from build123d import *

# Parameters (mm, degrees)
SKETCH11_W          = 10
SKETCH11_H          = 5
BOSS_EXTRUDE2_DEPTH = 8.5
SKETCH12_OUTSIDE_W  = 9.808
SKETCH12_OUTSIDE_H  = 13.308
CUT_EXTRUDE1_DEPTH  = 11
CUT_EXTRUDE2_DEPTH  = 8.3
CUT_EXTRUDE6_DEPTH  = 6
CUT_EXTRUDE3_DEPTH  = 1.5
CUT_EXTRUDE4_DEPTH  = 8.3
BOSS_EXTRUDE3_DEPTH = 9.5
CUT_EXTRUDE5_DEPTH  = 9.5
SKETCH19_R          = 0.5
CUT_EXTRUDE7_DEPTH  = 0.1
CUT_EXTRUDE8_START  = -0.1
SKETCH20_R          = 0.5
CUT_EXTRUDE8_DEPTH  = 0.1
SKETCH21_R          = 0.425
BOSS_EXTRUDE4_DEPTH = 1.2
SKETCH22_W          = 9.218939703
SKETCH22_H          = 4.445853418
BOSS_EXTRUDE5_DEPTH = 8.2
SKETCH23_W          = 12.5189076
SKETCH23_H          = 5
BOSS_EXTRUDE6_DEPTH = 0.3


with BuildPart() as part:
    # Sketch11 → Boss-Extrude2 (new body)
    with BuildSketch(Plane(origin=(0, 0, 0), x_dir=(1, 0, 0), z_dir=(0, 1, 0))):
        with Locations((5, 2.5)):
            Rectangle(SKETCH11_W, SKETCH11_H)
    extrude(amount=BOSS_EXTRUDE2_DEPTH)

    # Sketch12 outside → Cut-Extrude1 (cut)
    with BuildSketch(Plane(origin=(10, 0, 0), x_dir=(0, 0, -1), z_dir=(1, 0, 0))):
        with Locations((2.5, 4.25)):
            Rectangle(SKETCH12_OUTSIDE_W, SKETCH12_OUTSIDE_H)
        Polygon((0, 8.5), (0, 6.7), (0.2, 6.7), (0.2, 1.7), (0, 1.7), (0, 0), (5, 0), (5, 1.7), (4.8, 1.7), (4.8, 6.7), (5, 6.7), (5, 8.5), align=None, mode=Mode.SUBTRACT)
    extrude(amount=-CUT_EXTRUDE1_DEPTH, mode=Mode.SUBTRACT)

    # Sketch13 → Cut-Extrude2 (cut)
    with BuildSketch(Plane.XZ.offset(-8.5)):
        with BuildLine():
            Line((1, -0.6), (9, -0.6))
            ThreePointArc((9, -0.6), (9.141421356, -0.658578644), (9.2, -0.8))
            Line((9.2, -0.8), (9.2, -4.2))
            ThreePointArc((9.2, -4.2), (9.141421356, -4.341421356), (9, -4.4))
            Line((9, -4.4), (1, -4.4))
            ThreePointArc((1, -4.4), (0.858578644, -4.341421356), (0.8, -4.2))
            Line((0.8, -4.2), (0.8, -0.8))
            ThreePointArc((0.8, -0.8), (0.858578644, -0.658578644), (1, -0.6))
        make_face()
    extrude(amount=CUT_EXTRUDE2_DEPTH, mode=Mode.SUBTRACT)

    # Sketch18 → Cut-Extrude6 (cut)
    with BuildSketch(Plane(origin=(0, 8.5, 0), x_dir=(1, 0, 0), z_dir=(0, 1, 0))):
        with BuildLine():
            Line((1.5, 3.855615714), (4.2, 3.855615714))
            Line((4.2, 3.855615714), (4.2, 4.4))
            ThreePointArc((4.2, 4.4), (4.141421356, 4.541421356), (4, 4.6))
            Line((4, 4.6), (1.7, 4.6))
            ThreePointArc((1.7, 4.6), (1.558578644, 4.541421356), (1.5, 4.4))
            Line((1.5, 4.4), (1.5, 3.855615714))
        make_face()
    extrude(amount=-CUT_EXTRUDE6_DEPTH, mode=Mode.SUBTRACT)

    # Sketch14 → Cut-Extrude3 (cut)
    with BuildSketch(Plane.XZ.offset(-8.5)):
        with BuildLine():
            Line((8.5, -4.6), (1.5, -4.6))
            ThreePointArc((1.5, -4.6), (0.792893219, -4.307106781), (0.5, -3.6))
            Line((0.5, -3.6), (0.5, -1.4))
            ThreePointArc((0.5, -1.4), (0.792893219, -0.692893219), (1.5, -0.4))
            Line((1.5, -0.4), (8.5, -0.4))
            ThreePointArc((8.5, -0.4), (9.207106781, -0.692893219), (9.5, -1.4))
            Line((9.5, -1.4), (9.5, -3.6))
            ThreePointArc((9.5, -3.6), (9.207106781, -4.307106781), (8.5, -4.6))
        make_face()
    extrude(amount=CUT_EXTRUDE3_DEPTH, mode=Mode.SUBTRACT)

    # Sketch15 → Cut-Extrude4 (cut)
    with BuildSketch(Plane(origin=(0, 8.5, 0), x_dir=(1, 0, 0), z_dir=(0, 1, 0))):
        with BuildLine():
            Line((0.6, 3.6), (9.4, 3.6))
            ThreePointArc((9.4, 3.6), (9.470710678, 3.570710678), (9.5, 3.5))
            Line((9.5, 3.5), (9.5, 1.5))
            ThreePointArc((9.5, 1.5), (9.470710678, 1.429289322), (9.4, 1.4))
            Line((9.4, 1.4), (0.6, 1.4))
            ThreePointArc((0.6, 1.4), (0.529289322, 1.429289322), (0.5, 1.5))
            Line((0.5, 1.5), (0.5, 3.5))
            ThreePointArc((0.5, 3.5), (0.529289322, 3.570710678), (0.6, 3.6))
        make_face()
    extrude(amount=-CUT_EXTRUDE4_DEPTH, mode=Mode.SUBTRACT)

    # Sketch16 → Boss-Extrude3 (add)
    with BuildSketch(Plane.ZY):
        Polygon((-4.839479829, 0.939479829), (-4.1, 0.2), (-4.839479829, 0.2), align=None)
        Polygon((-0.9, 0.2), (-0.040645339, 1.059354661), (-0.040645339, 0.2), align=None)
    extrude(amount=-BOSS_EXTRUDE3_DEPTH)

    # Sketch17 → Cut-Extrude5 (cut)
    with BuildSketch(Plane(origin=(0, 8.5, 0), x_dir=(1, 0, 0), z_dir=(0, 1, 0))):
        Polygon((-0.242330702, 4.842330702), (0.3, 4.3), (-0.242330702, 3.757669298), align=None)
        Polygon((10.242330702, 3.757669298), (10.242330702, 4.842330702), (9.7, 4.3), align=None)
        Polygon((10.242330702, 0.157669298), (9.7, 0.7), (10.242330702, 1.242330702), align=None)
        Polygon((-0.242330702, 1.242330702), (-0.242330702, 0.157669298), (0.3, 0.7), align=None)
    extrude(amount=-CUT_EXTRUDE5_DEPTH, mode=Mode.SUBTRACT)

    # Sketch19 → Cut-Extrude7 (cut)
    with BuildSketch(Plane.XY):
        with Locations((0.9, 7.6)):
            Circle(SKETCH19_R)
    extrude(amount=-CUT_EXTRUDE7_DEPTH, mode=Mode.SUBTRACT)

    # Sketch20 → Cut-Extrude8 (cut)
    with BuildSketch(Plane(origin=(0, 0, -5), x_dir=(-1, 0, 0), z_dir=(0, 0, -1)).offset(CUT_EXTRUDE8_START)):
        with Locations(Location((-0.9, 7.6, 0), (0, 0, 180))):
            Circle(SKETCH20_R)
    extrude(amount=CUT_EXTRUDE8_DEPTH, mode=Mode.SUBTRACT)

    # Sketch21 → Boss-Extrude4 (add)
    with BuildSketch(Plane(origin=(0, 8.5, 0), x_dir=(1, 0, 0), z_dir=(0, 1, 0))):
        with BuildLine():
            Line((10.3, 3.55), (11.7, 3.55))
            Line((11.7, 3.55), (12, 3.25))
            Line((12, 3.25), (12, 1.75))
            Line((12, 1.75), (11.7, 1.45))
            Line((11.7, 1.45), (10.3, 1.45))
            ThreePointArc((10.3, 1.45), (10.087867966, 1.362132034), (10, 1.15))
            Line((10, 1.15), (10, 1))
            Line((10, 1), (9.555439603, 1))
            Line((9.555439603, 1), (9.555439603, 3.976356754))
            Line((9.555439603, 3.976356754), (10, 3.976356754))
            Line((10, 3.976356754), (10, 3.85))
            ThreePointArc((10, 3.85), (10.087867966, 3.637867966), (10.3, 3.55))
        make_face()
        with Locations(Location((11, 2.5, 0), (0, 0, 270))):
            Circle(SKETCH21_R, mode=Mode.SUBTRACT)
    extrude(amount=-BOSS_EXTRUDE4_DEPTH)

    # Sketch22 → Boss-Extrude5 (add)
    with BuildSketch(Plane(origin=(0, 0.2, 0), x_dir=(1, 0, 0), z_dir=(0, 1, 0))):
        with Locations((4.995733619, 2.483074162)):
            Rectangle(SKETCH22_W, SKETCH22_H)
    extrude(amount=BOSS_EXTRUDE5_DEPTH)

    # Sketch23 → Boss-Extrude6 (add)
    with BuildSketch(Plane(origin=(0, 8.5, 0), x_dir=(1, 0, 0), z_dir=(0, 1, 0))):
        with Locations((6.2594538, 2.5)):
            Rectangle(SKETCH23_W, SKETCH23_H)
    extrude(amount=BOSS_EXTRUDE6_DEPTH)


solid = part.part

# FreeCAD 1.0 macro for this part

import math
import FreeCAD as App
import Part
import Sketcher

V = App.Vector

doc = App.newDocument("Part")
params = doc.addObject("Spreadsheet::Sheet", "Params")
for row, (alias, value) in enumerate([
    ("sketch1_width", "10 mm"),
    ("sketch1_height", "5 mm"),
    ("pad1_length", "8.5 mm"),
    ("sketch2_width", "5 mm"),
    ("sketch2_width2", "1.8 mm"),
    ("sketch2_width3", "1.7 mm"),
    ("sketch2_height", "0.2 mm"),
    ("pocket1_length", "11 mm"),
    ("sketch3_radius", "0.2 mm"),
    ("sketch3_width", "8 mm"),
    ("sketch3_height", "3.4 mm"),
    ("pocket2_length", "8.3 mm"),
    ("sketch4_radius", "0.2 mm"),
    ("sketch4_width", "2.7 mm"),
    ("pocket3_length", "6 mm"),
    ("sketch5_radius", "1 mm"),
    ("sketch5_width", "7 mm"),
    ("sketch5_height", "2.2 mm"),
    ("pocket4_length", "1.5 mm"),
    ("sketch6_radius", "0.1 mm"),
    ("sketch6_height", "2 mm"),
    ("sketch6_width", "8.8 mm"),
    ("pocket5_length", "8.3 mm"),
    ("pad2_length", "9.5 mm"),
    ("pocket6_length", "9.5 mm"),
    ("sketch9_diameter", "1 mm"),
    ("pocket7_length", "0.1 mm"),
    ("sketch10_diameter", "1 mm"),
    ("pocket8_length", "0.1 mm"),
    ("sketch11_radius", "0.3 mm"),
    ("sketch11_diameter", "0.85 mm"),
    ("sketch11_width", "1.4 mm"),
    ("sketch11_height", "1.5 mm"),
    ("sketch11_height2", "0.15 mm"),
    ("pad3_length", "1.2 mm"),
    ("pad4_length", "8.2 mm"),
    ("sketch13_height", "5 mm"),
    ("pad5_length", "0.3 mm"),
], start=1):
    params.set(f"A{row}", alias)
    params.set(f"B{row}", "=" + value)
    params.setAlias(f"B{row}", alias)

body = doc.addObject("PartDesign::Body", "Body")

sketch1 = body.newObject("Sketcher::SketchObject", "Sketch")
sketch1.AttachmentSupport = (doc.getObject("XZ_Plane"), [""])
sketch1.MapMode = "FlatFace"
sketch1.addGeometry([
    Part.LineSegment(V(0, -5, 0), V(0, 0, 0)),
    Part.LineSegment(V(0, 0, 0), V(10, 0, 0)),
    Part.LineSegment(V(10, 0, 0), V(10, -5, 0)),
    Part.LineSegment(V(10, -5, 0), V(0, -5, 0)),
], False)
sketch1.addConstraint([
    Sketcher.Constraint("Coincident", 0, 2, 1, 1),
    Sketcher.Constraint("Coincident", 1, 2, 2, 1),
    Sketcher.Constraint("Coincident", 2, 2, 3, 1),
    Sketcher.Constraint("Coincident", 3, 2, 0, 1),
    Sketcher.Constraint("Vertical", 0),
    Sketcher.Constraint("Horizontal", 1),
    Sketcher.Constraint("Vertical", 2),
    Sketcher.Constraint("Horizontal", 3),
    Sketcher.Constraint("Coincident", 0, 2, -1, 1),
    Sketcher.Constraint("DistanceX", 1, 1, 1, 2, 10.0),
    Sketcher.Constraint("DistanceY", 0, 1, 0, 2, 5.0),
])
sketch1.setExpression("Constraints[9]", "Params.sketch1_width")
sketch1.setExpression("Constraints[10]", "Params.sketch1_height")
pad1 = body.newObject("PartDesign::Pad", "Pad")
pad1.Profile = sketch1
pad1.setExpression("Length", "Params.pad1_length")
pad1.Reversed = True

sketch2 = body.newObject("Sketcher::SketchObject", "Sketch001")
sketch2.AttachmentSupport = (doc.getObject("YZ_Plane"), [""])
sketch2.MapMode = "FlatFace"
sketch2.AttachmentOffset = App.Placement(V(0, 0, 10), App.Rotation())
sketch2.addGeometry([
    Part.LineSegment(V(10.9, 2.4, 0), V(-2.4, 2.4, 0)),
    Part.LineSegment(V(-2.4, 2.4, 0), V(-2.4, -7.4, 0)),
    Part.LineSegment(V(-2.4, -7.4, 0), V(10.9, -7.4, 0)),
    Part.LineSegment(V(10.9, -7.4, 0), V(10.9, 2.4, 0)),
    Part.LineSegment(V(6.7, 0, 0), V(8.5, 0, 0)),
    Part.LineSegment(V(8.5, 0, 0), V(8.5, -5, 0)),
    Part.LineSegment(V(8.5, -5, 0), V(6.7, -5, 0)),
    Part.LineSegment(V(6.7, -5, 0), V(6.7, -4.8, 0)),
    Part.LineSegment(V(6.7, -4.8, 0), V(1.7, -4.8, 0)),
    Part.LineSegment(V(1.7, -4.8, 0), V(1.7, -5, 0)),
    Part.LineSegment(V(1.7, -5, 0), V(0, -5, 0)),
    Part.LineSegment(V(0, -5, 0), V(0, 0, 0)),
    Part.LineSegment(V(0, 0, 0), V(1.7, 0, 0)),
    Part.LineSegment(V(1.7, 0, 0), V(1.7, -0.2, 0)),
    Part.LineSegment(V(1.7, -0.2, 0), V(6.7, -0.2, 0)),
    Part.LineSegment(V(6.7, -0.2, 0), V(6.7, 0, 0)),
], False)
sketch2.addConstraint([
    Sketcher.Constraint("Coincident", 0, 2, 1, 1),
    Sketcher.Constraint("Coincident", 1, 2, 2, 1),
    Sketcher.Constraint("Coincident", 2, 2, 3, 1),
    Sketcher.Constraint("Coincident", 3, 2, 0, 1),
    Sketcher.Constraint("Coincident", 4, 2, 5, 1),
    Sketcher.Constraint("Coincident", 5, 2, 6, 1),
    Sketcher.Constraint("Coincident", 6, 2, 7, 1),
    Sketcher.Constraint("Coincident", 7, 2, 8, 1),
    Sketcher.Constraint("Coincident", 8, 2, 9, 1),
    Sketcher.Constraint("Coincident", 9, 2, 10, 1),
    Sketcher.Constraint("Coincident", 10, 2, 11, 1),
    Sketcher.Constraint("Coincident", 11, 2, 12, 1),
    Sketcher.Constraint("Coincident", 12, 2, 13, 1),
    Sketcher.Constraint("Coincident", 13, 2, 14, 1),
    Sketcher.Constraint("Coincident", 14, 2, 15, 1),
    Sketcher.Constraint("Coincident", 15, 2, 4, 1),
    Sketcher.Constraint("Horizontal", 0),
    Sketcher.Constraint("Vertical", 1),
    Sketcher.Constraint("Horizontal", 2),
    Sketcher.Constraint("Vertical", 3),
    Sketcher.Constraint("Horizontal", 4),
    Sketcher.Constraint("Vertical", 5),
    Sketcher.Constraint("Horizontal", 6),
    Sketcher.Constraint("Vertical", 7),
    Sketcher.Constraint("Horizontal", 8),
    Sketcher.Constraint("Vertical", 9),
    Sketcher.Constraint("Horizontal", 10),
    Sketcher.Constraint("Vertical", 11),
    Sketcher.Constraint("Horizontal", 12),
    Sketcher.Constraint("Vertical", 13),
    Sketcher.Constraint("Horizontal", 14),
    Sketcher.Constraint("Vertical", 15),
    Sketcher.Constraint("Coincident", 11, 2, -1, 1),
    Sketcher.Constraint("PointOnObject", 4, 2, -1),
    Sketcher.Constraint("Horizontal", 6, 2, 9, 2),
    Sketcher.Constraint("Vertical", 9, 2, 12, 2),
    Sketcher.Constraint("Vertical", 7, 2, 14, 2),
    Sketcher.Constraint("Equal", 14, 5),
    Sketcher.Constraint("Equal", 9, 13),
    Sketcher.Constraint("DistanceX", 8, 2, 8, 1, 5.0),
    Sketcher.Constraint("DistanceX", 4, 1, 4, 2, 1.8),
    Sketcher.Constraint("DistanceX", 10, 2, 10, 1, 1.7),
    Sketcher.Constraint("DistanceY", 7, 1, 7, 2, 0.2),
    Sketcher.Constraint("DistanceX", 0, 2, 0, 1, 13.308),
    Sketcher.Constraint("DistanceY", 1, 2, 1, 1, 9.808),
    Sketcher.Constraint("DistanceX", 0, 2, -1, 1, 2.404),
    Sketcher.Constraint("DistanceY", -1, 1, 0, 2, 2.404),
])
sketch2.setExpression("Constraints[39]", "Params.sketch2_width")
sketch2.setExpression("Constraints[40]", "Params.sketch2_width2")
sketch2.setExpression("Constraints[41]", "Params.sketch2_width3")
sketch2.setExpression("Constraints[42]", "Params.sketch2_height")
pocket1 = body.newObject("PartDesign::Pocket", "Pocket")
pocket1.Profile = sketch2
pocket1.setExpression("Length", "Params.pocket1_length")

sketch3 = body.newObject("Sketcher::SketchObject", "Sketch002")
sketch3.AttachmentSupport = (doc.getObject("XZ_Plane"), [""])
sketch3.MapMode = "FlatFace"
sketch3.AttachmentOffset = App.Placement(V(0, 0, -8.5), App.Rotation())
sketch3.addGeometry([
    Part.LineSegment(V(9, -0.6, 0), V(1, -0.6, 0)),
    Part.ArcOfCircle(Part.Circle(V(1, -0.8, 0), V(0, 0, 1), 0.2), math.radians(90), math.radians(180)),
    Part.LineSegment(V(0.8, -0.8, 0), V(0.8, -4.2, 0)),
    Part.ArcOfCircle(Part.Circle(V(1, -4.2, 0), V(0, 0, 1), 0.2), math.radians(-180), math.radians(-90)),
    Part.LineSegment(V(1, -4.4, 0), V(9, -4.4, 0)),
    Part.ArcOfCircle(Part.Circle(V(9, -4.2, 0), V(0, 0, 1), 0.2), math.radians(-90), math.radians(0)),
    Part.LineSegment(V(9.2, -4.2, 0), V(9.2, -0.8, 0)),
    Part.ArcOfCircle(Part.Circle(V(9, -0.8, 0), V(0, 0, 1), 0.2), math.radians(0), math.radians(90)),
], False)
sketch3.addConstraint([
    Sketcher.Constraint("Tangent", 0, 2, 1, 1),
    Sketcher.Constraint("Tangent", 1, 2, 2, 1),
    Sketcher.Constraint("Tangent", 2, 2, 3, 1),
    Sketcher.Constraint("Tangent", 3, 2, 4, 1),
    Sketcher.Constraint("Tangent", 4, 2, 5, 1),
    Sketcher.Constraint("Tangent", 5, 2, 6, 1),
    Sketcher.Constraint("Tangent", 6, 2, 7, 1),
    Sketcher.Constraint("Tangent", 7, 2, 0, 1),
    Sketcher.Constraint("Horizontal", 0),
    Sketcher.Constraint("Vertical", 2),
    Sketcher.Constraint("Horizontal", 4),
    Sketcher.Constraint("Vertical", 6),
    Sketcher.Constraint("Equal", 1, 3),
    Sketcher.Constraint("Equal", 3, 5),
    Sketcher.Constraint("Equal", 5, 7),
    Sketcher.Constraint("Radius", 1, 0.2),
    Sketcher.Constraint("DistanceX", 0, 2, 0, 1, 8.0),
    Sketcher.Constraint("DistanceY", 2, 2, 2, 1, 3.4),
    Sketcher.Constraint("DistanceX", -1, 1, 1, 3, 1.0),
    Sketcher.Constraint("DistanceY", 1, 3, -1, 1, 0.8),
])
sketch3.setExpression("Constraints[15]", "Params.sketch3_radius")
sketch3.setExpression("Constraints[16]", "Params.sketch3_width")
sketch3.setExpression("Constraints[17]", "Params.sketch3_height")
pocket2 = body.newObject("PartDesign::Pocket", "Pocket001")
pocket2.Profile = sketch3
pocket2.setExpression("Length", "Params.pocket2_length")
pocket2.Reversed = True

sketch4 = body.newObject("Sketcher::SketchObject", "Sketch003")
sketch4.AttachmentSupport = (doc.getObject("XZ_Plane"), [""])
sketch4.MapMode = "FlatFace"
sketch4.AttachmentOffset = App.Placement(V(0, 0, -8.5), App.Rotation())
sketch4.addGeometry([
    Part.LineSegment(V(1.5, -3.86, 0), V(4.2, -3.86, 0)),
    Part.LineSegment(V(4.2, -3.86, 0), V(4.2, -4.4, 0)),
    Part.ArcOfCircle(Part.Circle(V(4, -4.4, 0), V(0, 0, 1), 0.2), math.radians(-90), math.radians(0)),
    Part.LineSegment(V(4, -4.6, 0), V(1.7, -4.6, 0)),
    Part.ArcOfCircle(Part.Circle(V(1.7, -4.4, 0), V(0, 0, 1), 0.2), math.radians(-180), math.radians(-90)),
    Part.LineSegment(V(1.5, -4.4, 0), V(1.5, -3.86, 0)),
], False)
sketch4.addConstraint([
    Sketcher.Constraint("Coincident", 0, 2, 1, 1),
    Sketcher.Constraint("Tangent", 1, 2, 2, 2),
    Sketcher.Constraint("Tangent", 2, 1, 3, 1),
    Sketcher.Constraint("Tangent", 3, 2, 4, 2),
    Sketcher.Constraint("Tangent", 4, 1, 5, 1),
    Sketcher.Constraint("Coincident", 5, 2, 0, 1),
    Sketcher.Constraint("Horizontal", 0),
    Sketcher.Constraint("Vertical", 1),
    Sketcher.Constraint("Horizontal", 3),
    Sketcher.Constraint("Vertical", 5),
    Sketcher.Constraint("Equal", 2, 4),
    Sketcher.Constraint("Radius", 2, 0.2),
    Sketcher.Constraint("DistanceX", 0, 1, 0, 2, 2.7),
    Sketcher.Constraint("DistanceX", -1, 1, 2, 3, 4.0),
    Sketcher.Constraint("DistanceY", 2, 3, -1, 1, 4.4),
    Sketcher.Constraint("DistanceY", 1, 2, 1, 1, 0.544384),
])
sketch4.setExpression("Constraints[11]", "Params.sketch4_radius")
sketch4.setExpression("Constraints[12]", "Params.sketch4_width")
pocket3 = body.newObject("PartDesign::Pocket", "Pocket002")
pocket3.Profile = sketch4
pocket3.setExpression("Length", "Params.pocket3_length")
pocket3.Reversed = True

sketch5 = body.newObject("Sketcher::SketchObject", "Sketch004")
sketch5.AttachmentSupport = (doc.getObject("XZ_Plane"), [""])
sketch5.MapMode = "FlatFace"
sketch5.AttachmentOffset = App.Placement(V(0, 0, -8.5), App.Rotation())
sketch5.addGeometry([
    Part.LineSegment(V(1.5, -4.6, 0), V(8.5, -4.6, 0)),
    Part.ArcOfCircle(Part.Circle(V(8.5, -3.6, 0), V(0, 0, 1), 1), math.radians(-90), math.radians(0)),
    Part.LineSegment(V(9.5, -3.6, 0), V(9.5, -1.4, 0)),
    Part.ArcOfCircle(Part.Circle(V(8.5, -1.4, 0), V(0, 0, 1), 1), math.radians(0), math.radians(90)),
    Part.LineSegment(V(8.5, -0.4, 0), V(1.5, -0.4, 0)),
    Part.ArcOfCircle(Part.Circle(V(1.5, -1.4, 0), V(0, 0, 1), 1), math.radians(90), math.radians(180)),
    Part.LineSegment(V(0.5, -1.4, 0), V(0.5, -3.6, 0)),
    Part.ArcOfCircle(Part.Circle(V(1.5, -3.6, 0), V(0, 0, 1), 1), math.radians(-180), math.radians(-90)),
], False)
sketch5.addConstraint([
    Sketcher.Constraint("Tangent", 0, 2, 1, 1),
    Sketcher.Constraint("Tangent", 1, 2, 2, 1),
    Sketcher.Constraint("Tangent", 2, 2, 3, 1),
    Sketcher.Constraint("Tangent", 3, 2, 4, 1),
    Sketcher.Constraint("Tangent", 4, 2, 5, 1),
    Sketcher.Constraint("Tangent", 5, 2, 6, 1),
    Sketcher.Constraint("Tangent", 6, 2, 7, 1),
    Sketcher.Constraint("Tangent", 7, 2, 0, 1),
    Sketcher.Constraint("Horizontal", 0),
    Sketcher.Constraint("Vertical", 2),
    Sketcher.Constraint("Horizontal", 4),
    Sketcher.Constraint("Vertical", 6),
    Sketcher.Constraint("Equal", 1, 3),
    Sketcher.Constraint("Equal", 3, 5),
    Sketcher.Constraint("Equal", 5, 7),
    Sketcher.Constraint("Radius", 1, 1.0),
    Sketcher.Constraint("DistanceX", 0, 1, 0, 2, 7.0),
    Sketcher.Constraint("DistanceY", 2, 1, 2, 2, 2.2),
    Sketcher.Constraint("DistanceX", -1, 1, 1, 3, 8.5),
    Sketcher.Constraint("DistanceY", 1, 3, -1, 1, 3.6),
])
sketch5.setExpression("Constraints[15]", "Params.sketch5_radius")
sketch5.setExpression("Constraints[16]", "Params.sketch5_width")
sketch5.setExpression("Constraints[17]", "Params.sketch5_height")
pocket4 = body.newObject("PartDesign::Pocket", "Pocket003")
pocket4.Profile = sketch5
pocket4.setExpression("Length", "Params.pocket4_length")
pocket4.Reversed = True

sketch6 = body.newObject("Sketcher::SketchObject", "Sketch005")
sketch6.AttachmentSupport = (doc.getObject("XZ_Plane"), [""])
sketch6.MapMode = "FlatFace"
sketch6.AttachmentOffset = App.Placement(V(0, 0, -8.5), App.Rotation())
sketch6.addGeometry([
    Part.LineSegment(V(9.4, -3.6, 0), V(0.6, -3.6, 0)),
    Part.ArcOfCircle(Part.Circle(V(0.6, -3.5, 0), V(0, 0, 1), 0.1), math.radians(180), math.radians(270)),
    Part.LineSegment(V(0.5, -3.5, 0), V(0.5, -1.5, 0)),
    Part.ArcOfCircle(Part.Circle(V(0.6, -1.5, 0), V(0, 0, 1), 0.1), math.radians(90), math.radians(180)),
    Part.LineSegment(V(0.6, -1.4, 0), V(9.4, -1.4, 0)),
    Part.ArcOfCircle(Part.Circle(V(9.4, -1.5, 0), V(0, 0, 1), 0.1), math.radians(0), math.radians(90)),
    Part.LineSegment(V(9.5, -1.5, 0), V(9.5, -3.5, 0)),
    Part.ArcOfCircle(Part.Circle(V(9.4, -3.5, 0), V(0, 0, 1), 0.1), math.radians(-90), math.radians(0)),
], False)
sketch6.addConstraint([
    Sketcher.Constraint("Tangent", 0, 2, 1, 2),
    Sketcher.Constraint("Tangent", 1, 1, 2, 1),
    Sketcher.Constraint("Tangent", 2, 2, 3, 2),
    Sketcher.Constraint("Tangent", 3, 1, 4, 1),
    Sketcher.Constraint("Tangent", 4, 2, 5, 2),
    Sketcher.Constraint("Tangent", 5, 1, 6, 1),
    Sketcher.Constraint("Tangent", 6, 2, 7, 2),
    Sketcher.Constraint("Tangent", 7, 1, 0, 1),
    Sketcher.Constraint("Horizontal", 0),
    Sketcher.Constraint("Vertical", 2),
    Sketcher.Constraint("Horizontal", 4),
    Sketcher.Constraint("Vertical", 6),
    Sketcher.Constraint("Equal", 1, 3),
    Sketcher.Constraint("Equal", 3, 5),
    Sketcher.Constraint("Equal", 5, 7),
    Sketcher.Constraint("Radius", 1, 0.1),
    Sketcher.Constraint("DistanceY", 2, 1, 2, 2, 2.0),
    Sketcher.Constraint("DistanceX", 0, 2, 0, 1, 8.8),
    Sketcher.Constraint("DistanceX", -1, 1, 1, 3, 0.6),
    Sketcher.Constraint("DistanceY", 1, 3, -1, 1, 3.5),
])
sketch6.setExpression("Constraints[15]", "Params.sketch6_radius")
sketch6.setExpression("Constraints[16]", "Params.sketch6_height")
sketch6.setExpression("Constraints[17]", "Params.sketch6_width")
pocket5 = body.newObject("PartDesign::Pocket", "Pocket004")
pocket5.Profile = sketch6
pocket5.setExpression("Length", "Params.pocket5_length")
pocket5.Reversed = True

sketch7 = body.newObject("Sketcher::SketchObject", "Sketch006")
sketch7.AttachmentSupport = (doc.getObject("YZ_Plane"), [""])
sketch7.MapMode = "FlatFace"
sketch7.addGeometry([
    Part.LineSegment(V(0.2, -4.1, 0), V(0.9, -4.8, 0)),
    Part.LineSegment(V(0.9, -4.8, 0), V(0.2, -4.8, 0)),
    Part.LineSegment(V(0.2, -4.8, 0), V(0.2, -4.1, 0)),
    Part.LineSegment(V(1.1, 0, 0), V(0.2, -0.9, 0)),
    Part.LineSegment(V(0.2, -0.9, 0), V(0.2, 0, 0)),
    Part.LineSegment(V(0.2, 0, 0), V(1.1, 0, 0)),
], False)
sketch7.addConstraint([
    Sketcher.Constraint("Coincident", 0, 2, 1, 1),
    Sketcher.Constraint("Coincident", 1, 2, 2, 1),
    Sketcher.Constraint("Coincident", 2, 2, 0, 1),
    Sketcher.Constraint("Coincident", 3, 2, 4, 1),
    Sketcher.Constraint("Coincident", 4, 2, 5, 1),
    Sketcher.Constraint("Coincident", 5, 2, 3, 1),
    Sketcher.Constraint("Horizontal", 1),
    Sketcher.Constraint("Vertical", 2),
    Sketcher.Constraint("Vertical", 4),
    Sketcher.Constraint("Horizontal", 5),
    Sketcher.Constraint("Perpendicular", 0, 3),
    Sketcher.Constraint("Vertical", 2, 2, 3, 2),
    Sketcher.Constraint("Equal", 1, 2),
    Sketcher.Constraint("DistanceX", -1, 1, 1, 2, 0.2),
    Sketcher.Constraint("DistanceY", 2, 2, -1, 1, 4.1),
    Sketcher.Constraint("DistanceY", 3, 2, -1, 1, 0.9),
    Sketcher.Constraint("DistanceX", 1, 2, 1, 1, 0.73948),
    Sketcher.Constraint("Distance", 3, 1.215311),
])
pad2 = body.newObject("PartDesign::Pad", "Pad001")
pad2.Profile = sketch7
pad2.setExpression("Length", "Params.pad2_length")

sketch8 = body.newObject("Sketcher::SketchObject", "Sketch007")
sketch8.AttachmentSupport = (doc.getObject("XZ_Plane"), [""])
sketch8.MapMode = "FlatFace"
sketch8.AttachmentOffset = App.Placement(V(0, 0, -8.5), App.Rotation())
sketch8.addGeometry([
    Part.LineSegment(V(0.3, -4.3, 0), V(-0.2, -4.8, 0)),
    Part.LineSegment(V(-0.2, -4.8, 0), V(-0.2, -3.8, 0)),
    Part.LineSegment(V(-0.2, -3.8, 0), V(0.3, -4.3, 0)),
    Part.LineSegment(V(10.2, -3.8, 0), V(10.2, -4.8, 0)),
    Part.LineSegment(V(10.2, -4.8, 0), V(9.7, -4.3, 0)),
    Part.LineSegment(V(9.7, -4.3, 0), V(10.2, -3.8, 0)),
    Part.LineSegment(V(9.7, -0.7, 0), V(10.2, -0.2, 0)),
    Part.LineSegment(V(10.2, -0.2, 0), V(10.2, -1.2, 0)),
    Part.LineSegment(V(10.2, -1.2, 0), V(9.7, -0.7, 0)),
    Part.LineSegment(V(-0.2, -1.2, 0), V(-0.2, -0.2, 0)),
    Part.LineSegment(V(-0.2, -0.2, 0), V(0.3, -0.7, 0)),
    Part.LineSegment(V(0.3, -0.7, 0), V(-0.2, -1.2, 0)),
], False)
sketch8.addConstraint([
    Sketcher.Constraint("Coincident", 0, 2, 1, 1),
    Sketcher.Constraint("Coincident", 1, 2, 2, 1),
    Sketcher.Constraint("Coincident", 2, 2, 0, 1),
    Sketcher.Constraint("Coincident", 3, 2, 4, 1),
    Sketcher.Constraint("Coincident", 4, 2, 5, 1),
    Sketcher.Constraint("Coincident", 5, 2, 3, 1),
    Sketcher.Constraint("Coincident", 6, 2, 7, 1),
    Sketcher.Constraint("Coincident", 7, 2, 8, 1),
    Sketcher.Constraint("Coincident", 8, 2, 6, 1),
    Sketcher.Constraint("Coincident", 9, 2, 10, 1),
    Sketcher.Constraint("Coincident", 10, 2, 11, 1),
    Sketcher.Constraint("Coincident", 11, 2, 9, 1),
    Sketcher.Constraint("Vertical", 1),
    Sketcher.Constraint("Vertical", 3),
    Sketcher.Constraint("Vertical", 7),
    Sketcher.Constraint("Vertical", 9),
    Sketcher.Constraint("Perpendicular", 0, 2),
    Sketcher.Constraint("Parallel", 2, 4),
    Sketcher.Constraint("Perpendicular", 4, 5),
    Sketcher.Constraint("Parallel", 5, 6),
    Sketcher.Constraint("Perpendicular", 6, 8),
    Sketcher.Constraint("Parallel", 8, 10),
    Sketcher.Constraint("Perpendicular", 10, 11),
    Sketcher.Constraint("Horizontal", 0, 2, 3, 2),
    Sketcher.Constraint("Horizontal", 2, 2, 4, 2),
    Sketcher.Constraint("Horizontal", 1, 2, 5, 2),
    Sketcher.Constraint("Horizontal", 6, 2, 9, 2),
    Sketcher.Constraint("Horizontal", 8, 2, 10, 2),
    Sketcher.Constraint("Vertical", 5, 2, 6, 2),
    Sketcher.Constraint("Vertical", 4, 2, 8, 2),
    Sketcher.Constraint("Vertical", 1, 2, 9, 2),
    Sketcher.Constraint("DistanceX", -1, 1, 2, 2, 0.3),
    Sketcher.Constraint("DistanceY", 2, 2, -1, 1, 4.3),
    Sketcher.Constraint("DistanceX", -1, 1, 4, 2, 9.7),
    Sketcher.Constraint("DistanceY", 8, 2, -1, 1, 0.7),
    Sketcher.Constraint("DistanceY", 1, 1, 1, 2, 1.084661),
])
pocket6 = body.newObject("PartDesign::Pocket", "Pocket005")
pocket6.Profile = sketch8
pocket6.setExpression("Length", "Params.pocket6_length")
pocket6.Reversed = True

sketch9 = body.newObject("Sketcher::SketchObject", "Sketch008")
sketch9.AttachmentSupport = (doc.getObject("XY_Plane"), [""])
sketch9.MapMode = "FlatFace"
sketch9.addGeometry(Part.Circle(V(0.9, 7.6, 0), V(0, 0, 1), 0.5), False)
sketch9.addConstraint([
    Sketcher.Constraint("Diameter", 0, 1.0),
    Sketcher.Constraint("DistanceX", -1, 1, 0, 3, 0.9),
    Sketcher.Constraint("DistanceY", -1, 1, 0, 3, 7.6),
])
sketch9.setExpression("Constraints[0]", "Params.sketch9_diameter")
pocket7 = body.newObject("PartDesign::Pocket", "Pocket006")
pocket7.Profile = sketch9
pocket7.setExpression("Length", "Params.pocket7_length")

sketch10 = body.newObject("Sketcher::SketchObject", "Sketch009")
sketch10.AttachmentSupport = (doc.getObject("XY_Plane"), [""])
sketch10.MapMode = "FlatFace"
sketch10.AttachmentOffset = App.Placement(V(0, 0, -4.9), App.Rotation())
sketch10.addGeometry(Part.Circle(V(0.9, 7.6, 0), V(0, 0, 1), 0.5), False)
sketch10.addConstraint([
    Sketcher.Constraint("Diameter", 0, 1.0),
    Sketcher.Constraint("DistanceX", -1, 1, 0, 3, 0.9),
    Sketcher.Constraint("DistanceY", -1, 1, 0, 3, 7.6),
])
sketch10.setExpression("Constraints[0]", "Params.sketch10_diameter")
pocket8 = body.newObject("PartDesign::Pocket", "Pocket007")
pocket8.Profile = sketch10
pocket8.setExpression("Length", "Params.pocket8_length")

sketch11 = body.newObject("Sketcher::SketchObject", "Sketch010")
sketch11.AttachmentSupport = (doc.getObject("XZ_Plane"), [""])
sketch11.MapMode = "FlatFace"
sketch11.AttachmentOffset = App.Placement(V(0, 0, -8.5), App.Rotation())
sketch11.addGeometry([
    Part.LineSegment(V(11.7, -3.55, 0), V(10.3, -3.55, 0)),
    Part.ArcOfCircle(Part.Circle(V(10.3, -3.85, 0), V(0, 0, 1), 0.3), math.radians(90), math.radians(180)),
    Part.LineSegment(V(10, -3.85, 0), V(10, -3.98, 0)),
    Part.LineSegment(V(10, -3.98, 0), V(9.56, -3.98, 0)),
    Part.LineSegment(V(9.56, -3.98, 0), V(9.56, -1, 0)),
    Part.LineSegment(V(9.56, -1, 0), V(10, -1, 0)),
    Part.LineSegment(V(10, -1, 0), V(10, -1.15, 0)),
    Part.ArcOfCircle(Part.Circle(V(10.3, -1.15, 0), V(0, 0, 1), 0.3), math.radians(-180), math.radians(-90)),
    Part.LineSegment(V(10.3, -1.45, 0), V(11.7, -1.45, 0)),
    Part.LineSegment(V(11.7, -1.45, 0), V(12, -1.75, 0)),
    Part.LineSegment(V(12, -1.75, 0), V(12, -3.25, 0)),
    Part.LineSegment(V(12, -3.25, 0), V(11.7, -3.55, 0)),
    Part.Circle(V(11, -2.5, 0), V(0, 0, 1), 0.42),
], False)
sketch11.addConstraint([
    Sketcher.Constraint("Tangent", 0, 2, 1, 1),
    Sketcher.Constraint("Tangent", 1, 2, 2, 1),
    Sketcher.Constraint("Coincident", 2, 2, 3, 1),
    Sketcher.Constraint("Coincident", 3, 2, 4, 1),
    Sketcher.Constraint("Coincident", 4, 2, 5, 1),
    Sketcher.Constraint("Coincident", 5, 2, 6, 1),
    Sketcher.Constraint("Tangent", 6, 2, 7, 1),
    Sketcher.Constraint("Tangent", 7, 2, 8, 1),
    Sketcher.Constraint("Coincident", 8, 2, 9, 1),
    Sketcher.Constraint("Coincident", 9, 2, 10, 1),
    Sketcher.Constraint("Coincident", 10, 2, 11, 1),
    Sketcher.Constraint("Coincident", 11, 2, 0, 1),
    Sketcher.Constraint("Horizontal", 0),
    Sketcher.Constraint("Vertical", 2),
    Sketcher.Constraint("Horizontal", 3),
    Sketcher.Constraint("Vertical", 4),
    Sketcher.Constraint("Horizontal", 5),
    Sketcher.Constraint("Vertical", 6),
    Sketcher.Constraint("Horizontal", 8),
    Sketcher.Constraint("Vertical", 10),
    Sketcher.Constraint("Equal", 1, 7),
    Sketcher.Constraint("Perpendicular", 9, 11),
    Sketcher.Constraint("Vertical", 1, 3, 7, 3),
    Sketcher.Constraint("Vertical", 8, 2, 11, 2),
    Sketcher.Constraint("Equal", 9, 11),
    Sketcher.Constraint("Radius", 1, 0.3),
    Sketcher.Constraint("Diameter", 12, 0.85),
    Sketcher.Constraint("DistanceX", 0, 2, 0, 1, 1.4),
    Sketcher.Constraint("DistanceY", 10, 2, 10, 1, 1.5),
    Sketcher.Constraint("DistanceX", -1, 1, 12, 3, 11.0),
    Sketcher.Constraint("DistanceX", -1, 1, 1, 2, 10.0),
    Sketcher.Constraint("DistanceY", 4, 2, -1, 1, 1.0),
    Sketcher.Constraint("DistanceX", -1, 1, 9, 2, 12.0),
    Sketcher.Constraint("DistanceY", 6, 2, 6, 1, 0.15),
    Sketcher.Constraint("DistanceY", 12, 3, -1, 1, 2.5),
    Sketcher.Constraint("DistanceX", 3, 2, 3, 1, 0.44456),
    Sketcher.Constraint("DistanceY", 2, 2, 2, 1, 0.126357),
])
sketch11.setExpression("Constraints[25]", "Params.sketch11_radius")
sketch11.setExpression("Constraints[26]", "Params.sketch11_diameter")
sketch11.setExpression("Constraints[27]", "Params.sketch11_width")
sketch11.setExpression("Constraints[28]", "Params.sketch11_height")
sketch11.setExpression("Constraints[33]", "Params.sketch11_height2")
pad3 = body.newObject("PartDesign::Pad", "Pad002")
pad3.Profile = sketch11
pad3.setExpression("Length", "Params.pad3_length")

sketch12 = body.newObject("Sketcher::SketchObject", "Sketch011")
sketch12.AttachmentSupport = (doc.getObject("XZ_Plane"), [""])
sketch12.MapMode = "FlatFace"
sketch12.AttachmentOffset = App.Placement(V(0, 0, -0.2), App.Rotation())
sketch12.addGeometry([
    Part.LineSegment(V(0.4, -4.7, 0), V(0.4, -0.3, 0)),
    Part.LineSegment(V(0.4, -0.3, 0), V(9.6, -0.3, 0)),
    Part.LineSegment(V(9.6, -0.3, 0), V(9.6, -4.7, 0)),
    Part.LineSegment(V(9.6, -4.7, 0), V(0.4, -4.7, 0)),
], False)
sketch12.addConstraint([
    Sketcher.Constraint("Coincident", 0, 2, 1, 1),
    Sketcher.Constraint("Coincident", 1, 2, 2, 1),
    Sketcher.Constraint("Coincident", 2, 2, 3, 1),
    Sketcher.Constraint("Coincident", 3, 2, 0, 1),
    Sketcher.Constraint("Vertical", 0),
    Sketcher.Constraint("Horizontal", 1),
    Sketcher.Constraint("Vertical", 2),
    Sketcher.Constraint("Horizontal", 3),
    Sketcher.Constraint("DistanceY", 2, 2, -1, 1, 4.706001),
    Sketcher.Constraint("DistanceX", 1, 1, 1, 2, 9.21894),
    Sketcher.Constraint("DistanceY", 0, 1, 0, 2, 4.445853),
    Sketcher.Constraint("DistanceX", -1, 1, 0, 2, 0.386264),
])
pad4 = body.newObject("PartDesign::Pad", "Pad003")
pad4.Profile = sketch12
pad4.setExpression("Length", "Params.pad4_length")
pad4.Reversed = True

sketch13 = body.newObject("Sketcher::SketchObject", "Sketch012")
sketch13.AttachmentSupport = (doc.getObject("XZ_Plane"), [""])
sketch13.MapMode = "FlatFace"
sketch13.AttachmentOffset = App.Placement(V(0, 0, -8.5), App.Rotation())
sketch13.addGeometry([
    Part.LineSegment(V(0, -5, 0), V(0, 0, 0)),
    Part.LineSegment(V(0, 0, 0), V(13, 0, 0)),
    Part.LineSegment(V(13, 0, 0), V(13, -5, 0)),
    Part.LineSegment(V(13, -5, 0), V(0, -5, 0)),
], False)
sketch13.addConstraint([
    Sketcher.Constraint("Coincident", 0, 2, 1, 1),
    Sketcher.Constraint("Coincident", 1, 2, 2, 1),
    Sketcher.Constraint("Coincident", 2, 2, 3, 1),
    Sketcher.Constraint("Coincident", 3, 2, 0, 1),
    Sketcher.Constraint("Vertical", 0),
    Sketcher.Constraint("Horizontal", 1),
    Sketcher.Constraint("Vertical", 2),
    Sketcher.Constraint("Horizontal", 3),
    Sketcher.Constraint("Coincident", 0, 2, -1, 1),
    Sketcher.Constraint("DistanceY", 0, 1, 0, 2, 5.0),
    Sketcher.Constraint("DistanceX", 1, 1, 1, 2, 12.518908),
])
sketch13.setExpression("Constraints[9]", "Params.sketch13_height")
pad5 = body.newObject("PartDesign::Pad", "Pad004")
pad5.Profile = sketch13
pad5.setExpression("Length", "Params.pad5_length")
pad5.Reversed = True

doc.recompute()
